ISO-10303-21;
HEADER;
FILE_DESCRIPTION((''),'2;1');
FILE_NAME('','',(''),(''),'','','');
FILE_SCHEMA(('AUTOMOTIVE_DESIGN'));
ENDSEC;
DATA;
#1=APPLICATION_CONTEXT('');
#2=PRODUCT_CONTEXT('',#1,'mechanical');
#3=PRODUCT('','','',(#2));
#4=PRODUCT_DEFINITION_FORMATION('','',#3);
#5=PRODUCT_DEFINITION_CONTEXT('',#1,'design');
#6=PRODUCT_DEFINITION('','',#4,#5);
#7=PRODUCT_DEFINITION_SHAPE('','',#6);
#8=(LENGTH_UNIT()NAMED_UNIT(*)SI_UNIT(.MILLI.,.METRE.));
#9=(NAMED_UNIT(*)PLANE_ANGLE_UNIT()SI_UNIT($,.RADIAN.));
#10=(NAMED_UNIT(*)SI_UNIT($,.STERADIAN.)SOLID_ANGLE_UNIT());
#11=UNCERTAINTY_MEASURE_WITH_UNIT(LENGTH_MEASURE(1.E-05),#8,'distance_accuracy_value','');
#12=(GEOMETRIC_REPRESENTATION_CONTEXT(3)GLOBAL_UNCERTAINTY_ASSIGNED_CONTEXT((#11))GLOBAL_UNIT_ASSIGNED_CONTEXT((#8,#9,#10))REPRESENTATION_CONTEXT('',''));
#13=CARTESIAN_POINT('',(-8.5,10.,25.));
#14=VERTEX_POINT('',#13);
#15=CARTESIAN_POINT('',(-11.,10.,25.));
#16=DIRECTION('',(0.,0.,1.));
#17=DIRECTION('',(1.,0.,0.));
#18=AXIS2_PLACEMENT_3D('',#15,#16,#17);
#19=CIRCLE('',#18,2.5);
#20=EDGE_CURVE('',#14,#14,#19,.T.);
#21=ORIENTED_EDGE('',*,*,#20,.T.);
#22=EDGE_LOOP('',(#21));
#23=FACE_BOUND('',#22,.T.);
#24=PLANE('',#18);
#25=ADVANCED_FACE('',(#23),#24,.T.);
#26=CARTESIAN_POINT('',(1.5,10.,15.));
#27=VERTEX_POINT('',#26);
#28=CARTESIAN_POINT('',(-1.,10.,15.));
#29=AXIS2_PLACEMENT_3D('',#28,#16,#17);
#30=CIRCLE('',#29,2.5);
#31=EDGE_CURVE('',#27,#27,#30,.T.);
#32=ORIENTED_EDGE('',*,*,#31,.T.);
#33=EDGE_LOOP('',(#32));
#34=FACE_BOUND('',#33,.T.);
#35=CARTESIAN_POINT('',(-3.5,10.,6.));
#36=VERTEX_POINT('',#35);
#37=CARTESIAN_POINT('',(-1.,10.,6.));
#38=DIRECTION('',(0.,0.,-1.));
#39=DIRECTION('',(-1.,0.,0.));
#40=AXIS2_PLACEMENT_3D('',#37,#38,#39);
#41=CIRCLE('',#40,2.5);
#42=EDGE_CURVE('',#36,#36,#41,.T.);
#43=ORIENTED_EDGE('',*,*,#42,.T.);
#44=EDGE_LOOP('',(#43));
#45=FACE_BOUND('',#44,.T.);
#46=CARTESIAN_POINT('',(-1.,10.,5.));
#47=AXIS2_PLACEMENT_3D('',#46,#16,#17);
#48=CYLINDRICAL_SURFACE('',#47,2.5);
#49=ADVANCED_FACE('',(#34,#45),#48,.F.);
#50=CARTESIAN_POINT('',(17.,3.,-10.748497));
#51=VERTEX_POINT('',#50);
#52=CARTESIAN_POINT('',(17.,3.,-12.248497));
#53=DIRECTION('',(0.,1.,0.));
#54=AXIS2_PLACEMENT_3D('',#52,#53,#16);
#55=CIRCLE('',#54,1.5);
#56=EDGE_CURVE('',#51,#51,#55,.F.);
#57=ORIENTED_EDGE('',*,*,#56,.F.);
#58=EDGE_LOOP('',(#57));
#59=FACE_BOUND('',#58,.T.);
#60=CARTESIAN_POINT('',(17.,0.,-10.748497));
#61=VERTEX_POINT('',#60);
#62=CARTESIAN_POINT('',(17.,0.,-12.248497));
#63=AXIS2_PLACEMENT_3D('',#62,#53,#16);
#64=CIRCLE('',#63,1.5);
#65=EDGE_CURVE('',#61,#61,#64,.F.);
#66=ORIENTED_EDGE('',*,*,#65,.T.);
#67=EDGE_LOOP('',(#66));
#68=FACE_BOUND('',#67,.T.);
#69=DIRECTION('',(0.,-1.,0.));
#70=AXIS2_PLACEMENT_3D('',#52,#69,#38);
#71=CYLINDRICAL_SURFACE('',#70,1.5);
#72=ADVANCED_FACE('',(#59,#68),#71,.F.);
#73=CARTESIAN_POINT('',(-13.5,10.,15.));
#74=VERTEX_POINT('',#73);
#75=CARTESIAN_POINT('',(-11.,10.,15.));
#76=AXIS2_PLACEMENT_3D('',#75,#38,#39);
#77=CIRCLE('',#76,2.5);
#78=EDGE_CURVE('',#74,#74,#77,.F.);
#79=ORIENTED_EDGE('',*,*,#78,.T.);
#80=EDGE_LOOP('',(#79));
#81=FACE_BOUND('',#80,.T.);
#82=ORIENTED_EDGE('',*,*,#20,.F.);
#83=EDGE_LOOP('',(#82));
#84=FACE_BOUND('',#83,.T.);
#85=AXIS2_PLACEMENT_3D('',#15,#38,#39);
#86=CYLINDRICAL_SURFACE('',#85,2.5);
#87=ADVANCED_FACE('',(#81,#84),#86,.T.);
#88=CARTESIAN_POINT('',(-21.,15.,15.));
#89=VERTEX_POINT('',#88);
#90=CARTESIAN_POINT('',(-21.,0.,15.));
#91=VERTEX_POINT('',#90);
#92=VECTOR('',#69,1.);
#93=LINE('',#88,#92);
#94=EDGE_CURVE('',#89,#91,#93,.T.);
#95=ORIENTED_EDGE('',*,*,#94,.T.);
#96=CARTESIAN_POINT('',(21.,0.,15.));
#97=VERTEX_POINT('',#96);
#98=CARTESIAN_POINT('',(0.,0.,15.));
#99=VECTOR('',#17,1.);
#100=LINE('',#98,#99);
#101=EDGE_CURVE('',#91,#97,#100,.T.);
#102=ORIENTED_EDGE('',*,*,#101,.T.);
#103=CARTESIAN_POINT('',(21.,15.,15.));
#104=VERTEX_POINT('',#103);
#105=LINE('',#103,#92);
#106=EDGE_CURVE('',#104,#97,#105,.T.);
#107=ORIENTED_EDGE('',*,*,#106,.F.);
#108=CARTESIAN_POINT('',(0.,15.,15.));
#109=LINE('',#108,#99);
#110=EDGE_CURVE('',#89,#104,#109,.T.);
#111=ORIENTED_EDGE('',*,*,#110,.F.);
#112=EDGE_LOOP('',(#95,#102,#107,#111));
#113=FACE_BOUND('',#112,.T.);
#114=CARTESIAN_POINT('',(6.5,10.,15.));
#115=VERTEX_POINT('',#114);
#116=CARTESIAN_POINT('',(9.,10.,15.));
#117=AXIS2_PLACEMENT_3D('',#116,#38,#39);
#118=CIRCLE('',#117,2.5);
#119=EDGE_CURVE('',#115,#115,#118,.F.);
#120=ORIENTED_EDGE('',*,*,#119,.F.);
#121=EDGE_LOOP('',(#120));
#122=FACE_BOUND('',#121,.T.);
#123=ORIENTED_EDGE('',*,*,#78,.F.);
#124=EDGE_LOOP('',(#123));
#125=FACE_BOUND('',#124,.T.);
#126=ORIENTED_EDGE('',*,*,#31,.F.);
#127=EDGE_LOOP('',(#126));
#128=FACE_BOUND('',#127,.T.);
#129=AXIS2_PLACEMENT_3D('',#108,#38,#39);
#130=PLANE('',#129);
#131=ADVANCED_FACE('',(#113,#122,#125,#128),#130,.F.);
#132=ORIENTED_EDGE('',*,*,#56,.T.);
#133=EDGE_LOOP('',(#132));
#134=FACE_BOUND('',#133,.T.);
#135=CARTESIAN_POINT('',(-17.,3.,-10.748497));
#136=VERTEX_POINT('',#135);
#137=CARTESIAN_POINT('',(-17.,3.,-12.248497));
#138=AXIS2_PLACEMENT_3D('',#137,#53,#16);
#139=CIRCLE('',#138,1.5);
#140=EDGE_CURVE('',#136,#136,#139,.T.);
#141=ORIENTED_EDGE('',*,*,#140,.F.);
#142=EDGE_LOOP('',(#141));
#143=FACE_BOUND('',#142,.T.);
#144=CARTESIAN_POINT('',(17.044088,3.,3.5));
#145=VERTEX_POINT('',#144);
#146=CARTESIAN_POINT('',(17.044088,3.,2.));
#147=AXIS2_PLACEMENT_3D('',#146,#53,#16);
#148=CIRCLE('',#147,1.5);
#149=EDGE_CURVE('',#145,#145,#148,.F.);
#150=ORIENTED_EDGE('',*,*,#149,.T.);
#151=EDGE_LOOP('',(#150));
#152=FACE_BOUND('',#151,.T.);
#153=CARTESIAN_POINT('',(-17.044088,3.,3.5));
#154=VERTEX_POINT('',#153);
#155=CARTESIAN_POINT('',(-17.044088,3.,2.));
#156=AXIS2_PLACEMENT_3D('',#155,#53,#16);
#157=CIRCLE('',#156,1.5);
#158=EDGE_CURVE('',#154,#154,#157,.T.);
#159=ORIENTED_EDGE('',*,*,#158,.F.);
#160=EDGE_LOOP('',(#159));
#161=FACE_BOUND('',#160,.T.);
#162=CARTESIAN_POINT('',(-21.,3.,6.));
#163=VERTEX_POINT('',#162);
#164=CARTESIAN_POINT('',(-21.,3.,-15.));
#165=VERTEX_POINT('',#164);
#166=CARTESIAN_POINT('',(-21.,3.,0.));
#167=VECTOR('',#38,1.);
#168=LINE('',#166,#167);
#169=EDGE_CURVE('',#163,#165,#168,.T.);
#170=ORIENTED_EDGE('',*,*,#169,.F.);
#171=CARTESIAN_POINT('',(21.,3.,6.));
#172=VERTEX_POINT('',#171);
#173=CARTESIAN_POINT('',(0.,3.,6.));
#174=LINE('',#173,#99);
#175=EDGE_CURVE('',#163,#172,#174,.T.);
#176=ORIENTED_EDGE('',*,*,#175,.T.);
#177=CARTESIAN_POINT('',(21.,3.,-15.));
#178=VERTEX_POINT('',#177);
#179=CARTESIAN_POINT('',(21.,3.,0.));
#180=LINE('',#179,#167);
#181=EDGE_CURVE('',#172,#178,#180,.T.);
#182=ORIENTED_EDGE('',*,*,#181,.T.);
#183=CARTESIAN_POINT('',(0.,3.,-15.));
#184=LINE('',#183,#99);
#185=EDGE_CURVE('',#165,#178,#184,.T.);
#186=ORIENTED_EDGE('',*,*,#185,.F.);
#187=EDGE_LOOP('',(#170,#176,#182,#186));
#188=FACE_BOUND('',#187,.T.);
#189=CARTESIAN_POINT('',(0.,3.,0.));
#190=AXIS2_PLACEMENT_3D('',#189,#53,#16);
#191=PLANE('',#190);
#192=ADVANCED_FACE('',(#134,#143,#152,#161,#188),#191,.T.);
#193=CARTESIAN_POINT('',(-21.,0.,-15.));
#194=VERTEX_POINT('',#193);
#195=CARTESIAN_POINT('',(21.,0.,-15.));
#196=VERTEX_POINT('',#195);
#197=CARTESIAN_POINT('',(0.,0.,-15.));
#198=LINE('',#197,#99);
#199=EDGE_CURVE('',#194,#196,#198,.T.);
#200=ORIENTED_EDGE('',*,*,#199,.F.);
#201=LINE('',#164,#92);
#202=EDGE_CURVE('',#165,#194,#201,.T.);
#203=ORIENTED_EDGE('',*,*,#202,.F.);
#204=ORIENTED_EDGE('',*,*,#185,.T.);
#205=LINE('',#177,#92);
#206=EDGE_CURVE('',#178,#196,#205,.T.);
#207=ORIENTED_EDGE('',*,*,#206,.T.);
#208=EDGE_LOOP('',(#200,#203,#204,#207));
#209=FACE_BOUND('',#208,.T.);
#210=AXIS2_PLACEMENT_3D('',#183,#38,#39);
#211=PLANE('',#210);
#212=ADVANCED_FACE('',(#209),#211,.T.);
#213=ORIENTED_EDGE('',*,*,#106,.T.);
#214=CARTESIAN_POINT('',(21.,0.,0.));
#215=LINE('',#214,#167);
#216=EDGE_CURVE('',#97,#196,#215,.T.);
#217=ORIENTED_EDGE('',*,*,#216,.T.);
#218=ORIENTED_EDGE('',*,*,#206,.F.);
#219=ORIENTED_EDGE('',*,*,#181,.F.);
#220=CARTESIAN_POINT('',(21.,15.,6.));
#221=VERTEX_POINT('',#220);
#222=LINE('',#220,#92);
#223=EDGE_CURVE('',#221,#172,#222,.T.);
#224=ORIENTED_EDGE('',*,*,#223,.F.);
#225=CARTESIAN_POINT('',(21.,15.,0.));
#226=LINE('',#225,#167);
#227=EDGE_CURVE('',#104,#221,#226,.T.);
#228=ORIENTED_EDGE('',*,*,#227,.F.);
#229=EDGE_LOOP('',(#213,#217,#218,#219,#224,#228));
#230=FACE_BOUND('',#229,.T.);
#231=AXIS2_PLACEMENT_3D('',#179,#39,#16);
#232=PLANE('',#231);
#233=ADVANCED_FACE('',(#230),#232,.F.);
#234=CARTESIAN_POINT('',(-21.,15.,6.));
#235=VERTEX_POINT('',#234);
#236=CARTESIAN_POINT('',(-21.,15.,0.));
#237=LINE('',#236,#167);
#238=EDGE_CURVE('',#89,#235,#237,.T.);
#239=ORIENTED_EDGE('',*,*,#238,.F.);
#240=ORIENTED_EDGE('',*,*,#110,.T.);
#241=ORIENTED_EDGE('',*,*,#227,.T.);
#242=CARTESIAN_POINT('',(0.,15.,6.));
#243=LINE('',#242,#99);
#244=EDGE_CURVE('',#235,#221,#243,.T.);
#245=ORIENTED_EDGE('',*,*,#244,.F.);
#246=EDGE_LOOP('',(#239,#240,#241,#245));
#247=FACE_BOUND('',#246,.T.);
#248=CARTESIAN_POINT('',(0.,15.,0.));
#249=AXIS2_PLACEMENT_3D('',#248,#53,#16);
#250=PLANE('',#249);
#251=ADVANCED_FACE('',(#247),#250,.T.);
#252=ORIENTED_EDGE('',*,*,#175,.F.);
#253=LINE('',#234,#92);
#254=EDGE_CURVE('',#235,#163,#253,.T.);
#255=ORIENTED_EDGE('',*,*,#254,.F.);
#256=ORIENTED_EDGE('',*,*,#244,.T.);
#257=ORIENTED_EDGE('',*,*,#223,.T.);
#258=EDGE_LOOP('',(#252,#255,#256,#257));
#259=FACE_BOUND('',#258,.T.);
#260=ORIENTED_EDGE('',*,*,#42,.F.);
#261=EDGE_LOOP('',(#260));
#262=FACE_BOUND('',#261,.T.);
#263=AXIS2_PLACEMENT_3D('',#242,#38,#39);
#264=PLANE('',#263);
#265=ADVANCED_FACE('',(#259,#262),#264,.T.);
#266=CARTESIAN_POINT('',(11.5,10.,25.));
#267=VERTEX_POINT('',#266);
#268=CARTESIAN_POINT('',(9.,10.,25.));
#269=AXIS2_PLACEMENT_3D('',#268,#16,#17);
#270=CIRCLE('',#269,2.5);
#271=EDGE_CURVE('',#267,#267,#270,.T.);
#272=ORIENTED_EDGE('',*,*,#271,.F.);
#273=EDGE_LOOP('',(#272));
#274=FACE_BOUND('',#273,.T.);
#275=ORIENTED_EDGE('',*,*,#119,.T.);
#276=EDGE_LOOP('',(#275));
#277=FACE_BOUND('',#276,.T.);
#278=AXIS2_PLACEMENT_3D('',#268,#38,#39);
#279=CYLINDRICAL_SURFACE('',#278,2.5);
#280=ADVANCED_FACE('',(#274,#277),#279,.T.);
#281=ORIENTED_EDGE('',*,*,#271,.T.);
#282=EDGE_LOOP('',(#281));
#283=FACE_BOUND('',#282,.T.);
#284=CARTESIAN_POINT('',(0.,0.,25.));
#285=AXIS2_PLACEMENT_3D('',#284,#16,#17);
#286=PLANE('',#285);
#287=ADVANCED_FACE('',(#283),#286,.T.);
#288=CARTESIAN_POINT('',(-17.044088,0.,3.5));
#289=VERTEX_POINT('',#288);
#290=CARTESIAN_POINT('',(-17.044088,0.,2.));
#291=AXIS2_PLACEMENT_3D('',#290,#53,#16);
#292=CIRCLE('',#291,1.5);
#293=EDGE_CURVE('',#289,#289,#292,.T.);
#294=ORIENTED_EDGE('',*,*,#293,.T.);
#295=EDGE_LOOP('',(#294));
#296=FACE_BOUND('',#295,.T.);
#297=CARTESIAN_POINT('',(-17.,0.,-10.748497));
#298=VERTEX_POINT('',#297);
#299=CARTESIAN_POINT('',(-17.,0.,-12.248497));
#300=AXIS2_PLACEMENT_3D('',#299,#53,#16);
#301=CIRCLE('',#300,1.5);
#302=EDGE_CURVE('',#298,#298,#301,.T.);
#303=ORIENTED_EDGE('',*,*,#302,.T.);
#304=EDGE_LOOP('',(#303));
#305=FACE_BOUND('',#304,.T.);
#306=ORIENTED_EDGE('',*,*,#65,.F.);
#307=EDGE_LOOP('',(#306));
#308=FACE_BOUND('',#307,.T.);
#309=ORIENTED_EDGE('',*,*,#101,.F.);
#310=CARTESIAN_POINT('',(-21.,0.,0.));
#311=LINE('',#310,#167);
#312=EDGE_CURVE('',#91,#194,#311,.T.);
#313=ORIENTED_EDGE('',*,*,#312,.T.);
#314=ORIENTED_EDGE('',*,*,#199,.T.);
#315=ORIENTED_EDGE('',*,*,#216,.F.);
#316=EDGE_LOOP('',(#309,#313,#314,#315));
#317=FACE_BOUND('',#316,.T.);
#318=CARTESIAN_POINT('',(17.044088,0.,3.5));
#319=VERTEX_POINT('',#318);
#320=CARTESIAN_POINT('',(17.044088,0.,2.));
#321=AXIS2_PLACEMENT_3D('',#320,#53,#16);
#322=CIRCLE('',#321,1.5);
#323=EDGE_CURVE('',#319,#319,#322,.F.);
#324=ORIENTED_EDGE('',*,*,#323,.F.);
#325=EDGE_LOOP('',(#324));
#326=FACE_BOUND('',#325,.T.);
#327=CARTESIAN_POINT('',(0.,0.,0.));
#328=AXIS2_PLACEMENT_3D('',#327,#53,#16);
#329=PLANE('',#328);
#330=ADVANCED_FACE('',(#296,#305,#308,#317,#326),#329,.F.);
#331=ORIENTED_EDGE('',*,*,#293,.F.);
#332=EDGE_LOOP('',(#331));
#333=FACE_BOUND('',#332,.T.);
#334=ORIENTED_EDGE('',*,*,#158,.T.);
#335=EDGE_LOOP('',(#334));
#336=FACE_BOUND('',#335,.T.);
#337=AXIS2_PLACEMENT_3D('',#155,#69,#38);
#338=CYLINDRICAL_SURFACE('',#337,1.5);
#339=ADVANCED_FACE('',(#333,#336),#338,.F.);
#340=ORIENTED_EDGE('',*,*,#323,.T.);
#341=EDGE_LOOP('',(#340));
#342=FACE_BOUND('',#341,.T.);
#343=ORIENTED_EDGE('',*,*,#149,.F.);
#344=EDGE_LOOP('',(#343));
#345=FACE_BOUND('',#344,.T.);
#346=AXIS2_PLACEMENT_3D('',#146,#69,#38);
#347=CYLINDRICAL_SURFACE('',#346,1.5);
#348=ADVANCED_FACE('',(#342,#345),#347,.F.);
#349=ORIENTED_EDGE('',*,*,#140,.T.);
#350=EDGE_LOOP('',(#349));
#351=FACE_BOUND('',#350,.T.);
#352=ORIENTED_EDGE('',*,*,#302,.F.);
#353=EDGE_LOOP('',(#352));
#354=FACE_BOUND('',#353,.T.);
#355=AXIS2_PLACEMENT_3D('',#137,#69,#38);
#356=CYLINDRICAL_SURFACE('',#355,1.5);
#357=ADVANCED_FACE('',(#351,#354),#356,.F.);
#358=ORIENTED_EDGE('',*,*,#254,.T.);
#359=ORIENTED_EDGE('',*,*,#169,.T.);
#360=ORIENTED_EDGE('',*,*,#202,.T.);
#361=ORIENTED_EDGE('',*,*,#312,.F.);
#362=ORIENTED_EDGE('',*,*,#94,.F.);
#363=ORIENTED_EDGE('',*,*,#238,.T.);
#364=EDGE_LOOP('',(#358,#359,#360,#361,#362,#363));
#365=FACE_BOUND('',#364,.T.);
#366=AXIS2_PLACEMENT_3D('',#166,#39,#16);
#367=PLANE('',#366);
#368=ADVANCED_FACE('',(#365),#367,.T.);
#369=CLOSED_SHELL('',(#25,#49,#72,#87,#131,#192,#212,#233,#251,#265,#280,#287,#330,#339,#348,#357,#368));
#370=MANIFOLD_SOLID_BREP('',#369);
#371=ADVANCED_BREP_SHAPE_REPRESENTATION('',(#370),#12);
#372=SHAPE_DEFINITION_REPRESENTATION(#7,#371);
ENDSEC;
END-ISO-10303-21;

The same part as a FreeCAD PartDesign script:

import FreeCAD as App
import Part
import Sketcher

doc = App.newDocument("Part")
body = doc.addObject("PartDesign::Body", "Body")

sketch1 = doc.addObject("Sketcher::SketchObject", "Sketch")
body.addObject(sketch1)
sketch1.AttachmentSupport = (doc.XZ_Plane, [""])
sketch1.MapMode = "FlatFace"
sketch1.addGeometry([
    Part.LineSegment(App.Vector(-21, -15, 0), App.Vector(-21, 6, 0)),
    Part.LineSegment(App.Vector(-21, 6, 0), App.Vector(21, 6, 0)),
    Part.LineSegment(App.Vector(21, 6, 0), App.Vector(21, -15, 0)),
    Part.LineSegment(App.Vector(21, -15, 0), App.Vector(-21, -15, 0)),
    Part.Circle(App.Vector(-17, 2, 0), App.Vector(0, 0, 1), 1.5),
    Part.Circle(App.Vector(17, 2, 0), App.Vector(0, 0, 1), 1.5),
    Part.Circle(App.Vector(-17, -12.2, 0), App.Vector(0, 0, 1), 1.5),
    Part.Circle(App.Vector(17, -12.2, 0), App.Vector(0, 0, 1), 1.5),
], False)
sketch1.addConstraint([
    Sketcher.Constraint("Coincident", 0, 2, 1, 1),
    Sketcher.Constraint("Coincident", 1, 2, 2, 1),
    Sketcher.Constraint("Coincident", 2, 2, 3, 1),
    Sketcher.Constraint("Coincident", 3, 2, 0, 1),
    Sketcher.Constraint("Vertical", 0),
    Sketcher.Constraint("Horizontal", 1),
    Sketcher.Constraint("Vertical", 2),
    Sketcher.Constraint("Horizontal", 3),
    Sketcher.Constraint("Equal", 4, 5),
    Sketcher.Constraint("Equal", 5, 6),
    Sketcher.Constraint("Equal", 6, 7),
    Sketcher.Constraint("Symmetric", 4, 3, 5, 3, -2),
    Sketcher.Constraint("Symmetric", 6, 3, 7, 3, -2),
    Sketcher.Constraint("Diameter", 4, 3.0),
    Sketcher.Constraint("DistanceX", 1, 1, 1, 2, 42.0),
    Sketcher.Constraint("DistanceY", 0, 1, 0, 2, 21.0),
    Sketcher.Constraint("DistanceY", -1, 1, 4, 3, 2.0),
    Sketcher.Constraint("DistanceX", 6, 3, -1, 1, 17.0),
    Sketcher.Constraint("DistanceX", 0, 2, -1, 1, 21.0),
    Sketcher.Constraint("DistanceY", -1, 1, 0, 2, 6.0),
    Sketcher.Constraint("DistanceX", 4, 3, -1, 1, 17.044088),
    Sketcher.Constraint("DistanceY", 6, 3, -1, 1, 12.248497),
])
pad1 = doc.addObject("PartDesign::Pad", "Pad")
body.addObject(pad1)
pad1.Profile = sketch1
pad1.Length = 3
pad1.Reversed = True

sketch2 = doc.addObject("Sketcher::SketchObject", "Sketch001")
body.addObject(sketch2)
sketch2.AttachmentSupport = (doc.XZ_Plane, [""])
sketch2.MapMode = "FlatFace"
sketch2.addGeometry([
    Part.LineSegment(App.Vector(-21, 6, 0), App.Vector(-21, 15, 0)),
    Part.LineSegment(App.Vector(-21, 15, 0), App.Vector(21, 15, 0)),
    Part.LineSegment(App.Vector(21, 15, 0), App.Vector(21, 6, 0)),
    Part.LineSegment(App.Vector(21, 6, 0), App.Vector(-21, 6, 0)),
], False)
sketch2.addConstraint([
    Sketcher.Constraint("Coincident", 0, 2, 1, 1),
    Sketcher.Constraint("Coincident", 1, 2, 2, 1),
    Sketcher.Constraint("Coincident", 2, 2, 3, 1),
    Sketcher.Constraint("Coincident", 3, 2, 0, 1),
    Sketcher.Constraint("Vertical", 0),
    Sketcher.Constraint("Horizontal", 1),
    Sketcher.Constraint("Vertical", 2),
    Sketcher.Constraint("Horizontal", 3),
    Sketcher.Constraint("DistanceX", 1, 1, 1, 2, 42.0),
    Sketcher.Constraint("DistanceY", 0, 1, 0, 2, 9.0),
    Sketcher.Constraint("DistanceX", 0, 2, -1, 1, 21.0),
    Sketcher.Constraint("DistanceY", -1, 1, 0, 2, 15.0),
])
pad2 = doc.addObject("PartDesign::Pad", "Pad001")
body.addObject(pad2)
pad2.Profile = sketch2
pad2.Length = 15
pad2.Reversed = True

sketch3 = doc.addObject("Sketcher::SketchObject", "Sketch002")
body.addObject(sketch3)
sketch3.AttachmentSupport = (doc.XY_Plane, [""])
sketch3.MapMode = "FlatFace"
sketch3.AttachmentOffset = App.Placement(App.Vector(0, 0, 15), App.Rotation())
sketch3.addGeometry([
    Part.Circle(App.Vector(9, 10, 0), App.Vector(0, 0, 1), 2.5),
    Part.Circle(App.Vector(-11, 10, 0), App.Vector(0, 0, 1), 2.5),
], False)
sketch3.addConstraint([
    Sketcher.Constraint("Equal", 0, 1),
    Sketcher.Constraint("Horizontal", 0, 3, 1, 3),
    Sketcher.Constraint("Diameter", 0, 5.0),
    Sketcher.Constraint("DistanceX", -1, 1, 0, 3, 9.0),
    Sketcher.Constraint("DistanceY", -1, 1, 0, 3, 10.0),
    Sketcher.Constraint("DistanceX", 1, 3, -1, 1, 11.0),
])
pad3 = doc.addObject("PartDesign::Pad", "Pad002")
body.addObject(pad3)
pad3.Profile = sketch3
pad3.Length = 10

sketch4 = doc.addObject("Sketcher::SketchObject", "Sketch003")
body.addObject(sketch4)
sketch4.AttachmentSupport = (doc.XY_Plane, [""])
sketch4.MapMode = "FlatFace"
sketch4.AttachmentOffset = App.Placement(App.Vector(0, 0, 15), App.Rotation())
sketch4.addGeometry(Part.Circle(App.Vector(-1, 10, 0), App.Vector(0, 0, 1), 2.5), False)
sketch4.addConstraint([
    Sketcher.Constraint("Diameter", 0, 5.0),
    Sketcher.Constraint("DistanceX", 0, 3, -1, 1, 1.0),
    Sketcher.Constraint("DistanceY", -1, 1, 0, 3, 10.0),
])
pocket1 = doc.addObject("PartDesign::Pocket", "Pocket")
body.addObject(pocket1)
pocket1.Profile = sketch4
pocket1.Length = 10

doc.recompute()
